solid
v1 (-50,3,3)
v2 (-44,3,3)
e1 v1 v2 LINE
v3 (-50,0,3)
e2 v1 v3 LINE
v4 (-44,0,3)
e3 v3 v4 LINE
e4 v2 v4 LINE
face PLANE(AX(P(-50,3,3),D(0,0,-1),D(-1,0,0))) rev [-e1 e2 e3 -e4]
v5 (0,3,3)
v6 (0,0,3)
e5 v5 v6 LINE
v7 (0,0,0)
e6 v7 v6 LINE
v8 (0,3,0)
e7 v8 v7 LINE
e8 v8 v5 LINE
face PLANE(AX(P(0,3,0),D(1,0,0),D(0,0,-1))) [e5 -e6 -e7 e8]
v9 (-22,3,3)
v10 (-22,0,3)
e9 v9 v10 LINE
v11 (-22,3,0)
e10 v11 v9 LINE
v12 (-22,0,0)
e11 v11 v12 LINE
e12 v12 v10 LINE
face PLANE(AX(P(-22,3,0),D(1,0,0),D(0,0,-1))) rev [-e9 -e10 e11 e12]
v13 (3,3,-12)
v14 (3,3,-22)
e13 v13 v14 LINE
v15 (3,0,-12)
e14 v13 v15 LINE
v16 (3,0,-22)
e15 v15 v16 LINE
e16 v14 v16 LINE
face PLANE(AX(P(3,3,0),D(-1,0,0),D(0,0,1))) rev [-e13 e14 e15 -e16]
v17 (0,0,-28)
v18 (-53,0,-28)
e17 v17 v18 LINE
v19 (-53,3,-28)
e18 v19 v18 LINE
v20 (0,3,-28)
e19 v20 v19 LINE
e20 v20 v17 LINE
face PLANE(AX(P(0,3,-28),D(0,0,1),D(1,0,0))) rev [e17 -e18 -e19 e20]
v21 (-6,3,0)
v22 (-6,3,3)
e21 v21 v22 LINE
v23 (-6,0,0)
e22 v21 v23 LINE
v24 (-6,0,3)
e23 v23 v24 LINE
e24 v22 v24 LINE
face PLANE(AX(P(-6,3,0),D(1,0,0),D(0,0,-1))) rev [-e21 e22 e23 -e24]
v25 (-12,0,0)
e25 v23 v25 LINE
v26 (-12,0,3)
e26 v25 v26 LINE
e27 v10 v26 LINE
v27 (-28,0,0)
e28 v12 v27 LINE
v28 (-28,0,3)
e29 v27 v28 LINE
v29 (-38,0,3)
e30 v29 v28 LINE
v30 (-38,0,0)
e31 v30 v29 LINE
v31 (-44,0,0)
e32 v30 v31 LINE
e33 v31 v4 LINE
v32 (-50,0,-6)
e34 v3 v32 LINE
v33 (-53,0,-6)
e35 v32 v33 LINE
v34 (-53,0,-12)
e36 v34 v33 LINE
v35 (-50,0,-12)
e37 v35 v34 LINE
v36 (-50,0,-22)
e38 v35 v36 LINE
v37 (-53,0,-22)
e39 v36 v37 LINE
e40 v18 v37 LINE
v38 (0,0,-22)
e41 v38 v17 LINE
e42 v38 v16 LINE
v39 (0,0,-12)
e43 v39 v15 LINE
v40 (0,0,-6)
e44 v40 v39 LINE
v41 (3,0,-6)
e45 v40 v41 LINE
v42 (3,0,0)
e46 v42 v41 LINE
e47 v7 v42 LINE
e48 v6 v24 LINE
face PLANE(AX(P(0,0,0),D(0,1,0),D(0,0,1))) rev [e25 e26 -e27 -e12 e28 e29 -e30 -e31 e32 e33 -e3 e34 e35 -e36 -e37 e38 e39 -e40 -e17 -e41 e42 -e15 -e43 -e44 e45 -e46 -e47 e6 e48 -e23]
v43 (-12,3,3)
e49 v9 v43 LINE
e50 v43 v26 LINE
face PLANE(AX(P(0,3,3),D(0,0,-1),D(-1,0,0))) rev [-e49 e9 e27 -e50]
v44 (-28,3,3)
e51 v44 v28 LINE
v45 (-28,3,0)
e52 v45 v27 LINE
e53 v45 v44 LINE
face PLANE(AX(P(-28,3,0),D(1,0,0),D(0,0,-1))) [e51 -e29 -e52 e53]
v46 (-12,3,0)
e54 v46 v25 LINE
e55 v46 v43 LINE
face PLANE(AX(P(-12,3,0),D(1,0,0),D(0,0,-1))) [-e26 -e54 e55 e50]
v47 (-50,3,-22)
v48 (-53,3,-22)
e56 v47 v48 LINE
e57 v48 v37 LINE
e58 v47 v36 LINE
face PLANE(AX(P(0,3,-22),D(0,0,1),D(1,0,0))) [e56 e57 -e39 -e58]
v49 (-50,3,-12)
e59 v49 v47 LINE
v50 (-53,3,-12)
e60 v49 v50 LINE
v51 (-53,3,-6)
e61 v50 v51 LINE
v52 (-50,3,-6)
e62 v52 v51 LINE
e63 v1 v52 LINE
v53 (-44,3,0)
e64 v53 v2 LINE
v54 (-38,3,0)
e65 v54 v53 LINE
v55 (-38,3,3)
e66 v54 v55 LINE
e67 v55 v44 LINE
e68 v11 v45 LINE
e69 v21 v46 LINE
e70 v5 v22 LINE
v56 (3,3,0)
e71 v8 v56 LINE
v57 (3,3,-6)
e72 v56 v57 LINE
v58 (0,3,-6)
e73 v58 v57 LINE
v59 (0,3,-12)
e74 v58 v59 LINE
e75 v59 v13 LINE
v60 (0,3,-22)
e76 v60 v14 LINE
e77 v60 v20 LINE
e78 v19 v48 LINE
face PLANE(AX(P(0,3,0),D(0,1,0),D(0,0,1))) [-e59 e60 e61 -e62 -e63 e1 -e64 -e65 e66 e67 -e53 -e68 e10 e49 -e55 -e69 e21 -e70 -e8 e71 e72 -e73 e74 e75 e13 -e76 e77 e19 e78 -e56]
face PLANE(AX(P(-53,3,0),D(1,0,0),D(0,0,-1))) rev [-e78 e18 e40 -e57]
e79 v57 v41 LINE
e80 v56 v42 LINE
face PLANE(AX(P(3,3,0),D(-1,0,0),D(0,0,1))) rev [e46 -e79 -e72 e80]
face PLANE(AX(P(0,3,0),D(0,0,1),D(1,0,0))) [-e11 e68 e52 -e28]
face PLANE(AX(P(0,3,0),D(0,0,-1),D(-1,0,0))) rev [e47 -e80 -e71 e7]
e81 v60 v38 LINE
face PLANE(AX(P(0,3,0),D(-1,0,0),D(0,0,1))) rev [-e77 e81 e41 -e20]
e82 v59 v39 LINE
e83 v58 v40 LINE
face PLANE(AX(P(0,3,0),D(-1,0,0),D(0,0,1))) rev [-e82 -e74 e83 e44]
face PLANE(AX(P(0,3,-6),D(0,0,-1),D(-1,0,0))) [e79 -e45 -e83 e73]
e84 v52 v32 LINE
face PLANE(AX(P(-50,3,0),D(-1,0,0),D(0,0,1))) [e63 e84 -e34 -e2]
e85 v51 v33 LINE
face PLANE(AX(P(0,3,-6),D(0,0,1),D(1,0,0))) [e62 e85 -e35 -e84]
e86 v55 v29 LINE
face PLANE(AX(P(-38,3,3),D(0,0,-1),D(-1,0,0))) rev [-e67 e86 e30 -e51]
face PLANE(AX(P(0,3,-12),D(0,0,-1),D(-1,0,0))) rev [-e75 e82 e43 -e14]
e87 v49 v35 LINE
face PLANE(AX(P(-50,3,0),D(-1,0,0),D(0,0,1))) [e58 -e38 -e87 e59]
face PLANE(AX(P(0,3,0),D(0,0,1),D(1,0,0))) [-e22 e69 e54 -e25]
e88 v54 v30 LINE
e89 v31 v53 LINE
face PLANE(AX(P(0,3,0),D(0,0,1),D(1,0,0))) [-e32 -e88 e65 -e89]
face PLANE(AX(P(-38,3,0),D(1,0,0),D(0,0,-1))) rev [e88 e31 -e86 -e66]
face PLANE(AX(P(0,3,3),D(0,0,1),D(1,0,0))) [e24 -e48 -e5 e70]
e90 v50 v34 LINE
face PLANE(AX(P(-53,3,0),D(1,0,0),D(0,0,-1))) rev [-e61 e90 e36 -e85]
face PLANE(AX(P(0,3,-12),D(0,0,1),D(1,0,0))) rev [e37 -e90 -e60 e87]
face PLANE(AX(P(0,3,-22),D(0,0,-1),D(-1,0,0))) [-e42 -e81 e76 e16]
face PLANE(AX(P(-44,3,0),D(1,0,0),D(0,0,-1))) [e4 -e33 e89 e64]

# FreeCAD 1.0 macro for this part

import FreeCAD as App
import Part
import Sketcher

V = App.Vector
Q = App.Units.Quantity


def add_polygon(sketch, points):
    """Adds a closed chain of lines whose ends are joined by coincident constraints."""
    first, n = sketch.GeometryCount, len(points)
    for a, b in zip(points, points[1:] + points[:1]):
        sketch.addGeometry(Part.LineSegment(App.Vector(*a, 0), App.Vector(*b, 0)), False)
    for i in range(n):
        sketch.addConstraint(Sketcher.Constraint("Coincident", first + i, 2, first + (i + 1) % n, 1))

doc = App.newDocument("Part")
params = doc.addObject("Spreadsheet::Sheet", "Params")
for row, (alias, value) in enumerate([
    ("sketch1_width", "3 mm"),
    ("sketch1_width2", "6 mm"),
    ("sketch1_width3", "10 mm"),
    ("pad1_length", "3 mm"),
    ("sketch2_width", "56 mm"),
    ("sketch2_height", "25 mm"),
], start=1):
    params.set(f"A{row}", alias)
    params.set(f"B{row}", "=" + value)
    params.setAlias(f"B{row}", alias)

body = doc.addObject("PartDesign::Body", "Body")

sketch1 = body.newObject("Sketcher::SketchObject", "Sketch")
sketch1.AttachmentSupport = (doc.getObject("XZ_Plane"), [""])
sketch1.MapMode = "FlatFace"
add_polygon(sketch1, [(0, 3), (0, 0), (3, 0), (3, -6), (0, -6), (0, -12), (3, -12), (3, -22), (0, -22), (0, -28), (3, -28), (3, -38), (0, -38), (0, -44), (3, -44), (3, -50), (0, -50), (0, -53), (-6, -53), (-6, -50), (-12, -50), (-12, -53), (-22, -53), (-22, -50), (-28, -50), (-28, -53), (-38, -53), (-38, -50), (-44, -50), (-44, -53), (-50, -53), (-50, -44), (-53, -44), (-53, -38), (-50, -38), (-50, -28), (-53, -28), (-53, -22), (-50, -22), (-50, -12), (-53, -12), (-53, -6), (-50, -6), (-50, 3), (-44, 3), (-44, 0), (-38, 0), (-38, 3), (-28, 3), (-28, 0), (-22, 0), (-22, 3), (-12, 3), (-12, 0), (-6, 0), (-6, 3)])
sketch1.addConstraint([
    Sketcher.Constraint("Vertical", 0),
    Sketcher.Constraint("Horizontal", 1),
    Sketcher.Constraint("Vertical", 2),
    Sketcher.Constraint("Horizontal", 3),
    Sketcher.Constraint("Vertical", 4),
    Sketcher.Constraint("Horizontal", 5),
    Sketcher.Constraint("Vertical", 6),
    Sketcher.Constraint("Horizontal", 7),
    Sketcher.Constraint("Vertical", 8),
    Sketcher.Constraint("Horizontal", 9),
    Sketcher.Constraint("Vertical", 10),
    Sketcher.Constraint("Horizontal", 11),
    Sketcher.Constraint("Vertical", 12),
    Sketcher.Constraint("Horizontal", 13),
    Sketcher.Constraint("Vertical", 14),
    Sketcher.Constraint("Horizontal", 15),
    Sketcher.Constraint("Vertical", 16),
    Sketcher.Constraint("Horizontal", 17),
    Sketcher.Constraint("Vertical", 18),
    Sketcher.Constraint("Horizontal", 19),
    Sketcher.Constraint("Vertical", 20),
    Sketcher.Constraint("Horizontal", 21),
    Sketcher.Constraint("Vertical", 22),
    Sketcher.Constraint("Horizontal", 23),
    Sketcher.Constraint("Vertical", 24),
    Sketcher.Constraint("Horizontal", 25),
    Sketcher.Constraint("Vertical", 26),
    Sketcher.Constraint("Horizontal", 27),
    Sketcher.Constraint("Vertical", 28),
    Sketcher.Constraint("Horizontal", 29),
    Sketcher.Constraint("Vertical", 30),
    Sketcher.Constraint("Horizontal", 31),
    Sketcher.Constraint("Vertical", 32),
    Sketcher.Constraint("Horizontal", 33),
    Sketcher.Constraint("Vertical", 34),
    Sketcher.Constraint("Horizontal", 35),
    Sketcher.Constraint("Vertical", 36),
    Sketcher.Constraint("Horizontal", 37),
    Sketcher.Constraint("Vertical", 38),
    Sketcher.Constraint("Horizontal", 39),
    Sketcher.Constraint("Vertical", 40),
    Sketcher.Constraint("Horizontal", 41),
    Sketcher.Constraint("Vertical", 42),
    Sketcher.Constraint("Horizontal", 43),
    Sketcher.Constraint("Vertical", 44),
    Sketcher.Constraint("Horizontal", 45),
    Sketcher.Constraint("Vertical", 46),
    Sketcher.Constraint("Horizontal", 47),
    Sketcher.Constraint("Vertical", 48),
    Sketcher.Constraint("Horizontal", 49),
    Sketcher.Constraint("Vertical", 50),
    Sketcher.Constraint("Horizontal", 51),
    Sketcher.Constraint("Vertical", 52),
    Sketcher.Constraint("Horizontal", 53),
    Sketcher.Constraint("Vertical", 54),
    Sketcher.Constraint("Horizontal", 55),
    Sketcher.Constraint("Coincident", 0, 2, -1, 1),
    Sketcher.Constraint("PointOnObject", 3, 2, -2),
    Sketcher.Constraint("PointOnObject", 7, 2, -2),
    Sketcher.Constraint("PointOnObject", 11, 2, -2),
    Sketcher.Constraint("PointOnObject", 15, 2, -2),
    Sketcher.Constraint("PointOnObject", 44, 2, -1),
    Sketcher.Constraint("PointOnObject", 48, 2, -1),
    Sketcher.Constraint("PointOnObject", 52, 2, -1),
    Sketcher.Constraint("Horizontal", 15, 2, 18, 2),
    Sketcher.Constraint("Horizontal", 17, 2, 20, 2),
    Sketcher.Constraint("Horizontal", 19, 2, 22, 2),
    Sketcher.Constraint("Horizontal", 21, 2, 24, 2),
    Sketcher.Constraint("Horizontal", 23, 2, 26, 2),
    Sketcher.Constraint("Horizontal", 25, 2, 28, 2),
    Sketcher.Constraint("Horizontal", 13, 2, 30, 2),
    Sketcher.Constraint("Horizontal", 11, 2, 32, 2),
    Sketcher.Constraint("Horizontal", 9, 2, 34, 2),
    Sketcher.Constraint("Horizontal", 7, 2, 36, 2),
    Sketcher.Constraint("Horizontal", 5, 2, 38, 2),
    Sketcher.Constraint("Horizontal", 3, 2, 40, 2),
    Sketcher.Constraint("Horizontal", 43, 2, 46, 2),
    Sketcher.Constraint("Horizontal", 47, 2, 50, 2),
    Sketcher.Constraint("Horizontal", 51, 2, 54, 2),
    Sketcher.Constraint("Vertical", 2, 2, 5, 2),
    Sketcher.Constraint("Vertical", 6, 2, 9, 2),
    Sketcher.Constraint("Vertical", 10, 2, 13, 2),
    Sketcher.Constraint("Vertical", 30, 2, 33, 2),
    Sketcher.Constraint("Vertical", 32, 2, 35, 2),
    Sketcher.Constraint("Vertical", 34, 2, 37, 2),
    Sketcher.Constraint("Vertical", 36, 2, 39, 2),
    Sketcher.Constraint("Vertical", 38, 2, 41, 2),
    Sketcher.Constraint("Vertical", 28, 2, 43, 2),
    Sketcher.Constraint("Vertical", 26, 2, 45, 2),
    Sketcher.Constraint("Vertical", 24, 2, 47, 2),
    Sketcher.Constraint("Vertical", 22, 2, 49, 2),
    Sketcher.Constraint("Vertical", 20, 2, 51, 2),
    Sketcher.Constraint("Vertical", 18, 2, 53, 2),
    Sketcher.Constraint("Equal", 17, 19),
    Sketcher.Constraint("Equal", 19, 23),
    Sketcher.Constraint("Equal", 21, 25),
    Sketcher.Constraint("Equal", 23, 27),
    Sketcher.Constraint("Equal", 27, 29),
    Sketcher.Constraint("Equal", 15, 31),
    Sketcher.Constraint("Equal", 41, 0),
    Sketcher.Constraint("Equal", 55, 2),
    Sketcher.Constraint("Equal", 2, 4),
    Sketcher.Constraint("Equal", 51, 6),
    Sketcher.Constraint("Equal", 4, 8),
    Sketcher.Constraint("Equal", 6, 10),
    Sketcher.Constraint("Equal", 8, 12),
    Sketcher.Constraint("Equal", 12, 14),
    Sketcher.Constraint("Equal", 0, 16),
    Sketcher.Constraint("DistanceX", 1, 1, 1, 2, Q("3 mm")),
    Sketcher.Constraint("DistanceX", 17, 2, 17, 1, Q("6 mm")),
    Sketcher.Constraint("DistanceX", 21, 2, 21, 1, Q("10 mm")),
])
sketch1.setExpression("Constraints[164]", "Params.sketch1_width")
sketch1.setExpression("Constraints[165]", "Params.sketch1_width2")
sketch1.setExpression("Constraints[166]", "Params.sketch1_width3")
pad1 = body.newObject("PartDesign::Pad", "Pad")
pad1.Profile = sketch1
pad1.setExpression("Length", "Params.pad1_length")
pad1.Reversed = True

sketch2 = body.newObject("Sketcher::SketchObject", "Sketch001")
sketch2.AttachmentSupport = (doc.getObject("XZ_Plane"), [""])
sketch2.MapMode = "FlatFace"
sketch2.AttachmentOffset = App.Placement(V(0, 0, -3), App.Rotation())
add_polygon(sketch2, [(-53, -53), (-53, -28), (3, -28), (3, -53)])
sketch2.addConstraint([
    Sketcher.Constraint("Vertical", 0),
    Sketcher.Constraint("Horizontal", 1),
    Sketcher.Constraint("Vertical", 2),
    Sketcher.Constraint("Horizontal", 3),
    Sketcher.Constraint("DistanceX", 1, 1, 1, 2, Q("56 mm")),
    Sketcher.Constraint("DistanceY", 0, 1, 0, 2, Q("25 mm")),
    Sketcher.Constraint("DistanceX", 0, 2, -1, 1, Q("53 mm")),
    Sketcher.Constraint("DistanceY", 0, 2, -1, 1, Q("28 mm")),
])
sketch2.setExpression("Constraints[8]", "Params.sketch2_width")
sketch2.setExpression("Constraints[9]", "Params.sketch2_height")
pocket1 = body.newObject("PartDesign::Pocket", "Pocket")
pocket1.Profile = sketch2
pocket1.Type = "ThroughAll"
pocket1.Reversed = True

doc.recompute()
